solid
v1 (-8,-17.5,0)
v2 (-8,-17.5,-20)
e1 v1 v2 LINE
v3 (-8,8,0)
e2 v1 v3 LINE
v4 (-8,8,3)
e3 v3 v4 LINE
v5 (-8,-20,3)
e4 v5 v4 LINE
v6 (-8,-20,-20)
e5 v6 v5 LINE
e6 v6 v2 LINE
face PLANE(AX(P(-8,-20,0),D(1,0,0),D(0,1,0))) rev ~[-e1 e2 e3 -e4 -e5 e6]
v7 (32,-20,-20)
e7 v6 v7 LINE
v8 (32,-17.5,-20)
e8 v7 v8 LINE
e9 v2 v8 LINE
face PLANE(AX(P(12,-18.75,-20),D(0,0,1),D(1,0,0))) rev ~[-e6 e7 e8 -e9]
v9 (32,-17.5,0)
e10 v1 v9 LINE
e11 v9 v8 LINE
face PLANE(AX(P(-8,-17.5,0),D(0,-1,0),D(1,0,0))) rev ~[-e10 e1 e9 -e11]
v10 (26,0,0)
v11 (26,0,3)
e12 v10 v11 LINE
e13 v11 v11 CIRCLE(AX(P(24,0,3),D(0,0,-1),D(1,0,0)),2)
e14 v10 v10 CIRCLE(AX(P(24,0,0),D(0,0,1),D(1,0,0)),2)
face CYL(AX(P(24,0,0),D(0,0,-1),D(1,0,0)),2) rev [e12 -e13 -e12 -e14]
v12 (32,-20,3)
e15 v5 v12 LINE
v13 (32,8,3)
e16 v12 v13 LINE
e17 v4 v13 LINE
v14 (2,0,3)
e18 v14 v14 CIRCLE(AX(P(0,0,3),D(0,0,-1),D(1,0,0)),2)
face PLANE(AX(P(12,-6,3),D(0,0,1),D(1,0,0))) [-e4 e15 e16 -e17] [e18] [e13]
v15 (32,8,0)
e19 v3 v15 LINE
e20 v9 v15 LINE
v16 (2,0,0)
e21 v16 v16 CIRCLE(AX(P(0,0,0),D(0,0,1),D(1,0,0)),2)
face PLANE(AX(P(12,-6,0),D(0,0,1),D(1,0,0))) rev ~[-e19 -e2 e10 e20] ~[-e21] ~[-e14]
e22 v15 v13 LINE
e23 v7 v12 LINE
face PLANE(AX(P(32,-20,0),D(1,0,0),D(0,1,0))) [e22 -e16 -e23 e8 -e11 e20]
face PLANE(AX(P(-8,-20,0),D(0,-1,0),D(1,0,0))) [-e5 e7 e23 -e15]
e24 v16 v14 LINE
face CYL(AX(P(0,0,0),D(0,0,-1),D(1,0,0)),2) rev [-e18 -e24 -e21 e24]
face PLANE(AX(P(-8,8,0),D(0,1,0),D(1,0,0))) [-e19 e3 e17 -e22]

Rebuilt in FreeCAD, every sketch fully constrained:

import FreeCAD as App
import Part
import Sketcher


def add_polygon(sketch, points):
    """Adds a closed chain of lines whose ends are joined by coincident constraints."""
    first, n = sketch.GeometryCount, len(points)
    for a, b in zip(points, points[1:] + points[:1]):
        sketch.addGeometry(Part.LineSegment(App.Vector(*a, 0), App.Vector(*b, 0)), False)
    for i in range(n):
        sketch.addConstraint(Sketcher.Constraint("Coincident", first + i, 2, first + (i + 1) % n, 1))

doc = App.newDocument("Part")
params = doc.addObject("Spreadsheet::Sheet", "Params")
for row, (alias, value) in enumerate([
    ("sketch1_width", "40 mm"),
    ("sketch1_height", "28 mm"),
    ("pad1_length", "3 mm"),
    ("sketch2_diameter", "4 mm"),
    ("pocket1_length", "5 mm"),
    ("sketch3_diameter", "4 mm"),
    ("pocket2_length", "5 mm"),
    ("sketch4_width", "40 mm"),
    ("sketch4_height", "2.5 mm"),
    ("pad2_length", "20 mm"),
], start=1):
    params.set(f"A{row}", alias)
    params.set(f"B{row}", "=" + value)
    params.setAlias(f"B{row}", alias)

body = doc.addObject("PartDesign::Body", "Body")

sketch1 = doc.addObject("Sketcher::SketchObject", "Sketch")
body.addObject(sketch1)
sketch1.AttachmentSupport = (doc.XY_Plane, [""])
sketch1.MapMode = "FlatFace"
add_polygon(sketch1, [(-8, 8), (-8, -20), (32, -20), (32, 8)])
sketch1.addConstraint([
    Sketcher.Constraint("Vertical", 0),
    Sketcher.Constraint("Horizontal", 1),
    Sketcher.Constraint("Vertical", 2),
    Sketcher.Constraint("Horizontal", 3),
    Sketcher.Constraint("DistanceX", 1, 1, 1, 2, 40.0),
    Sketcher.Constraint("DistanceY", 0, 2, 0, 1, 28.0),
    Sketcher.Constraint("DistanceX", 0, 2, -1, 1, 8.0),
    Sketcher.Constraint("DistanceY", 0, 2, -1, 1, 20.0),
])
sketch1.setExpression("Constraints[8]", "Params.sketch1_width")
sketch1.setExpression("Constraints[9]", "Params.sketch1_height")
pad1 = doc.addObject("PartDesign::Pad", "Pad")
body.addObject(pad1)
pad1.Profile = sketch1
pad1.setExpression("Length", "Params.pad1_length")

sketch2 = doc.addObject("Sketcher::SketchObject", "Sketch001")
body.addObject(sketch2)
sketch2.AttachmentSupport = (doc.XY_Plane, [""])
sketch2.MapMode = "FlatFace"
sketch2.addGeometry(Part.Circle(App.Vector(0, 0, 0), App.Vector(0, 0, 1), 2), False)
sketch2.addConstraint([
    Sketcher.Constraint("Coincident", 0, 3, -1, 1),
    Sketcher.Constraint("Diameter", 0, 4.0),
])
sketch2.setExpression("Constraints[1]", "Params.sketch2_diameter")
pocket1 = doc.addObject("PartDesign::Pocket", "Pocket")
body.addObject(pocket1)
pocket1.Profile = sketch2
pocket1.setExpression("Length", "Params.pocket1_length")
pocket1.Reversed = True

sketch3 = doc.addObject("Sketcher::SketchObject", "Sketch002")
body.addObject(sketch3)
sketch3.AttachmentSupport = (doc.XY_Plane, [""])
sketch3.MapMode = "FlatFace"
sketch3.addGeometry(Part.Circle(App.Vector(24, 0, 0), App.Vector(0, 0, 1), 2), False)
sketch3.addConstraint([
    Sketcher.Constraint("PointOnObject", 0, 3, -1),
    Sketcher.Constraint("Diameter", 0, 4.0),
    Sketcher.Constraint("DistanceX", -1, 1, 0, 3, 24.0),
])
sketch3.setExpression("Constraints[1]", "Params.sketch3_diameter")
pocket2 = doc.addObject("PartDesign::Pocket", "Pocket001")
body.addObject(pocket2)
pocket2.Profile = sketch3
pocket2.setExpression("Length", "Params.pocket2_length")
pocket2.Reversed = True

sketch4 = doc.addObject("Sketcher::SketchObject", "Sketch003")
body.addObject(sketch4)
sketch4.AttachmentSupport = (doc.XY_Plane, [""])
sketch4.MapMode = "FlatFace"
add_polygon(sketch4, [(-8, -17.5), (-8, -20), (32, -20), (32, -17.5)])
sketch4.addConstraint([
    Sketcher.Constraint("Vertical", 0),
    Sketcher.Constraint("Horizontal", 1),
    Sketcher.Constraint("Vertical", 2),
    Sketcher.Constraint("Horizontal", 3),
    Sketcher.Constraint("DistanceX", 1, 1, 1, 2, 40.0),
    Sketcher.Constraint("DistanceY", 0, 2, 0, 1, 2.5),
    Sketcher.Constraint("DistanceX", 0, 2, -1, 1, 8.0),
    Sketcher.Constraint("DistanceY", 0, 2, -1, 1, 20.0),
])
sketch4.setExpression("Constraints[8]", "Params.sketch4_width")
sketch4.setExpression("Constraints[9]", "Params.sketch4_height")
pad2 = doc.addObject("PartDesign::Pad", "Pad001")
body.addObject(pad2)
pad2.Profile = sketch4
pad2.setExpression("Length", "Params.pad2_length")
pad2.Reversed = True

doc.recompute()
